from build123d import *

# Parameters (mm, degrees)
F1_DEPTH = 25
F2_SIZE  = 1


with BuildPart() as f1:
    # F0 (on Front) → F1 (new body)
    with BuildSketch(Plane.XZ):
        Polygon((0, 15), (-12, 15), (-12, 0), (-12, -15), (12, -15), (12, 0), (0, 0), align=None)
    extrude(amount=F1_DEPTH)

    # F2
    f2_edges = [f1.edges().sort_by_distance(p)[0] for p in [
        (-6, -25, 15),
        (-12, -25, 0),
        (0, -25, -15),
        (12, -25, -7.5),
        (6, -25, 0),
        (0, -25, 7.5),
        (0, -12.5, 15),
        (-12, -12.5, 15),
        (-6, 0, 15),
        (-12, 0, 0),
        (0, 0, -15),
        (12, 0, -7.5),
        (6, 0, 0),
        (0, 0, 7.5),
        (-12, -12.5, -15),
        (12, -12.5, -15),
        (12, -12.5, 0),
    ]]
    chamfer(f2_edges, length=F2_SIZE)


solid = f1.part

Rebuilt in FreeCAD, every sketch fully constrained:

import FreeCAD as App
import Part
import Sketcher


def edges_at(feature, points):
    """Names of the edges that pass closest to the given points."""
    edges = feature.Shape.Edges
    near = lambda p: min(range(len(edges)), key=lambda i: edges[i].distToShape(Part.Vertex(*p))[0])
    return sorted({f"Edge{near(p) + 1}" for p in points})


def add_polygon(sketch, points):
    """Adds a closed chain of lines whose ends are joined by coincident constraints."""
    first, n = sketch.GeometryCount, len(points)
    for a, b in zip(points, points[1:] + points[:1]):
        sketch.addGeometry(Part.LineSegment(App.Vector(*a, 0), App.Vector(*b, 0)), False)
    for i in range(n):
        sketch.addConstraint(Sketcher.Constraint("Coincident", first + i, 2, first + (i + 1) % n, 1))

doc = App.newDocument("Part")
body = doc.addObject("PartDesign::Body", "Body")

sketch1 = doc.addObject("Sketcher::SketchObject", "Sketch")
body.addObject(sketch1)
sketch1.AttachmentSupport = (doc.XZ_Plane, [""])
sketch1.MapMode = "FlatFace"
add_polygon(sketch1, [(0, 15), (-12, 15), (-12, -15), (12, -15), (12, 0), (0, 0)])
sketch1.addConstraint([
    Sketcher.Constraint("Horizontal", 0),
    Sketcher.Constraint("Vertical", 1),
    Sketcher.Constraint("Horizontal", 2),
    Sketcher.Constraint("Vertical", 3),
    Sketcher.Constraint("Horizontal", 4),
    Sketcher.Constraint("Vertical", 5),
    Sketcher.Constraint("Coincident", 4, 2, -1, 1),
    Sketcher.Constraint("Symmetric", 0, 2, 2, 2, -1, 1),
    Sketcher.Constraint("DistanceX", 0, 2, 0, 1, 12.0),
    Sketcher.Constraint("DistanceY", 1, 2, 1, 1, 30.0),
])
pad1 = doc.addObject("PartDesign::Pad", "Pad")
body.addObject(pad1)
pad1.Profile = sketch1
pad1.Length = 25
doc.recompute()

chamfer = doc.addObject("PartDesign::Chamfer", "Chamfer")
body.addObject(chamfer)
chamfer.Base = (pad1, edges_at(pad1, [
    (-6, -25, 15),
    (-12, -25, 0),
    (0, -25, -15),
    (12, -25, -7.5),
    (6, -25, 0),
    (0, -25, 7.5),
    (0, -12.5, 15),
    (-12, -12.5, 15),
    (-6, 0, 15),
    (-12, 0, 0),
    (0, 0, -15),
    (12, 0, -7.5),
    (6, 0, 0),
    (0, 0, 7.5),
    (-12, -12.5, -15),
    (12, -12.5, -15),
    (12, -12.5, 0),
]))
chamfer.Size = 1

doc.recompute()
